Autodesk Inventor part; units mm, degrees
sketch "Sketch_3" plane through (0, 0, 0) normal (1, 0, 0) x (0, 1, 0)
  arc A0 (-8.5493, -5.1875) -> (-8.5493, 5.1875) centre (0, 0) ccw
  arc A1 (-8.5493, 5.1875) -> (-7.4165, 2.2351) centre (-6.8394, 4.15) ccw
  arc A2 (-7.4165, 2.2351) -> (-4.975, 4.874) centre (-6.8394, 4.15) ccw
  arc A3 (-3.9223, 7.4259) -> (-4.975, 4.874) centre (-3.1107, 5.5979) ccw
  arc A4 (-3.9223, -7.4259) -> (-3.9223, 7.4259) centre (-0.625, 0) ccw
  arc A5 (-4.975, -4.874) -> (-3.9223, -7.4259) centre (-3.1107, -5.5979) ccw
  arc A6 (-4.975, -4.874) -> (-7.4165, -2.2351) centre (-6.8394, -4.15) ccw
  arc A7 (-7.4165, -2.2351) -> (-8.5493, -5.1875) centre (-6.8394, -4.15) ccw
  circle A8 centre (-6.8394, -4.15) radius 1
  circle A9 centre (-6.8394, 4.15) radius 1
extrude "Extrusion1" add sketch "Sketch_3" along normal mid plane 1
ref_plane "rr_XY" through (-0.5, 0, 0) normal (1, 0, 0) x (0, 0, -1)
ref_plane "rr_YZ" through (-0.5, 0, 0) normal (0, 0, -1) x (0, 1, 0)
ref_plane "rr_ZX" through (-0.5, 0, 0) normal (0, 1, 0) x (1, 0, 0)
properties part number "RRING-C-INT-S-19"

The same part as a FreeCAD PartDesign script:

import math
import FreeCAD as App
import Part
import Sketcher
from FreeCAD import Vector
Q = App.Units.Quantity

doc = App.newDocument("Part")
params = doc.addObject("Spreadsheet::Sheet", "Params")
for row, (alias, value) in enumerate([
    ("sketch1_diameter", "2 mm"),
    ("sketch1_radius", "2 mm"),
    ("sketch1_radius2", "10 mm"),
    ("pad1_length", "1 mm"),
], start=1):
    params.set(f"A{row}", alias)
    params.set(f"B{row}", "=" + value)
    params.setAlias(f"B{row}", alias)

body = doc.addObject("PartDesign::Body", "Body")

sketch1 = body.newObject("Sketcher::SketchObject", "Sketch")
sketch1.AttachmentSupport = (doc.getObject("YZ_Plane"), [""])
sketch1.MapMode = "FlatFace"
sketch1.addGeometry([
    Part.ArcOfCircle(Part.Circle(Vector(-6.8, -4.2, 0), Vector(0, 0, 1), 2), math.radians(107), math.radians(211)),
    Part.ArcOfCircle(Part.Circle(Vector(0, 0, 0), Vector(0, 0, 1), 10), math.radians(-149), math.radians(149)),
    Part.ArcOfCircle(Part.Circle(Vector(-6.8, 4.2, 0), Vector(0, 0, 1), 2), math.radians(149), math.radians(253)),
    Part.ArcOfCircle(Part.Circle(Vector(-6.8, 4.2, 0), Vector(0, 0, 1), 2), math.radians(-107), math.radians(21)),
    Part.ArcOfCircle(Part.Circle(Vector(-3.1, 5.6, 0), Vector(0, 0, 1), 2), math.radians(114), math.radians(201)),
    Part.ArcOfCircle(Part.Circle(Vector(-0.6, 0, 0), Vector(0, 0, 1), 8.1), math.radians(-114), math.radians(114)),
    Part.ArcOfCircle(Part.Circle(Vector(-3.1, -5.6, 0), Vector(0, 0, 1), 2), math.radians(159), math.radians(246)),
    Part.ArcOfCircle(Part.Circle(Vector(-6.8, -4.2, 0), Vector(0, 0, 1), 2), math.radians(-21), math.radians(107)),
    Part.Circle(Vector(-6.8, -4.2, 0), Vector(0, 0, 1), 1),
    Part.Circle(Vector(-6.8, 4.2, 0), Vector(0, 0, 1), 1),
], False)
sketch1.addConstraint([
    Sketcher.Constraint("Tangent", 0, 2, 1, 1),
    Sketcher.Constraint("Tangent", 1, 2, 2, 1),
    Sketcher.Constraint("Tangent", 2, 2, 3, 1),
    Sketcher.Constraint("Tangent", 3, 2, 4, 2),
    Sketcher.Constraint("Tangent", 4, 1, 5, 2),
    Sketcher.Constraint("Tangent", 5, 1, 6, 2),
    Sketcher.Constraint("Tangent", 6, 1, 7, 1),
    Sketcher.Constraint("Tangent", 7, 2, 0, 1),
    Sketcher.Constraint("Coincident", 1, 3, -1, 1),
    Sketcher.Constraint("Coincident", 8, 3, 0, 3),
    Sketcher.Constraint("Coincident", 9, 3, 2, 3),
    Sketcher.Constraint("Equal", 0, 2),
    Sketcher.Constraint("Equal", 2, 3),
    Sketcher.Constraint("Equal", 3, 4),
    Sketcher.Constraint("Equal", 4, 6),
    Sketcher.Constraint("Equal", 6, 7),
    Sketcher.Constraint("Equal", 8, 9),
    Sketcher.Constraint("Symmetric", 4, 3, 6, 3, -1),
    Sketcher.Constraint("Vertical", 2, 2, 7, 2),
    Sketcher.Constraint("Diameter", 8, Q("2 mm")),
    Sketcher.Constraint("Radius", 0, Q("2 mm")),
    Sketcher.Constraint("Radius", 1, Q("10 mm")),
    Sketcher.Constraint("Radius", 5, Q("8.125 mm")),
    Sketcher.Constraint("DistanceY", 0, 3, 2, 3, Q("8.3 mm")),
    Sketcher.Constraint("DistanceY", -1, 1, 4, 3, Q("5.598 mm")),
    Sketcher.Constraint("DistanceY", -1, 1, 2, 2, Q("2.235 mm")),
])
sketch1.setExpression("Constraints[19]", "Params.sketch1_diameter")
sketch1.setExpression("Constraints[20]", "Params.sketch1_radius")
sketch1.setExpression("Constraints[21]", "Params.sketch1_radius2")
pad1 = body.newObject("PartDesign::Pad", "Pad")
pad1.Profile = sketch1
pad1.setExpression("Length", "Params.pad1_length")
pad1.Midplane = True

doc.recompute()
